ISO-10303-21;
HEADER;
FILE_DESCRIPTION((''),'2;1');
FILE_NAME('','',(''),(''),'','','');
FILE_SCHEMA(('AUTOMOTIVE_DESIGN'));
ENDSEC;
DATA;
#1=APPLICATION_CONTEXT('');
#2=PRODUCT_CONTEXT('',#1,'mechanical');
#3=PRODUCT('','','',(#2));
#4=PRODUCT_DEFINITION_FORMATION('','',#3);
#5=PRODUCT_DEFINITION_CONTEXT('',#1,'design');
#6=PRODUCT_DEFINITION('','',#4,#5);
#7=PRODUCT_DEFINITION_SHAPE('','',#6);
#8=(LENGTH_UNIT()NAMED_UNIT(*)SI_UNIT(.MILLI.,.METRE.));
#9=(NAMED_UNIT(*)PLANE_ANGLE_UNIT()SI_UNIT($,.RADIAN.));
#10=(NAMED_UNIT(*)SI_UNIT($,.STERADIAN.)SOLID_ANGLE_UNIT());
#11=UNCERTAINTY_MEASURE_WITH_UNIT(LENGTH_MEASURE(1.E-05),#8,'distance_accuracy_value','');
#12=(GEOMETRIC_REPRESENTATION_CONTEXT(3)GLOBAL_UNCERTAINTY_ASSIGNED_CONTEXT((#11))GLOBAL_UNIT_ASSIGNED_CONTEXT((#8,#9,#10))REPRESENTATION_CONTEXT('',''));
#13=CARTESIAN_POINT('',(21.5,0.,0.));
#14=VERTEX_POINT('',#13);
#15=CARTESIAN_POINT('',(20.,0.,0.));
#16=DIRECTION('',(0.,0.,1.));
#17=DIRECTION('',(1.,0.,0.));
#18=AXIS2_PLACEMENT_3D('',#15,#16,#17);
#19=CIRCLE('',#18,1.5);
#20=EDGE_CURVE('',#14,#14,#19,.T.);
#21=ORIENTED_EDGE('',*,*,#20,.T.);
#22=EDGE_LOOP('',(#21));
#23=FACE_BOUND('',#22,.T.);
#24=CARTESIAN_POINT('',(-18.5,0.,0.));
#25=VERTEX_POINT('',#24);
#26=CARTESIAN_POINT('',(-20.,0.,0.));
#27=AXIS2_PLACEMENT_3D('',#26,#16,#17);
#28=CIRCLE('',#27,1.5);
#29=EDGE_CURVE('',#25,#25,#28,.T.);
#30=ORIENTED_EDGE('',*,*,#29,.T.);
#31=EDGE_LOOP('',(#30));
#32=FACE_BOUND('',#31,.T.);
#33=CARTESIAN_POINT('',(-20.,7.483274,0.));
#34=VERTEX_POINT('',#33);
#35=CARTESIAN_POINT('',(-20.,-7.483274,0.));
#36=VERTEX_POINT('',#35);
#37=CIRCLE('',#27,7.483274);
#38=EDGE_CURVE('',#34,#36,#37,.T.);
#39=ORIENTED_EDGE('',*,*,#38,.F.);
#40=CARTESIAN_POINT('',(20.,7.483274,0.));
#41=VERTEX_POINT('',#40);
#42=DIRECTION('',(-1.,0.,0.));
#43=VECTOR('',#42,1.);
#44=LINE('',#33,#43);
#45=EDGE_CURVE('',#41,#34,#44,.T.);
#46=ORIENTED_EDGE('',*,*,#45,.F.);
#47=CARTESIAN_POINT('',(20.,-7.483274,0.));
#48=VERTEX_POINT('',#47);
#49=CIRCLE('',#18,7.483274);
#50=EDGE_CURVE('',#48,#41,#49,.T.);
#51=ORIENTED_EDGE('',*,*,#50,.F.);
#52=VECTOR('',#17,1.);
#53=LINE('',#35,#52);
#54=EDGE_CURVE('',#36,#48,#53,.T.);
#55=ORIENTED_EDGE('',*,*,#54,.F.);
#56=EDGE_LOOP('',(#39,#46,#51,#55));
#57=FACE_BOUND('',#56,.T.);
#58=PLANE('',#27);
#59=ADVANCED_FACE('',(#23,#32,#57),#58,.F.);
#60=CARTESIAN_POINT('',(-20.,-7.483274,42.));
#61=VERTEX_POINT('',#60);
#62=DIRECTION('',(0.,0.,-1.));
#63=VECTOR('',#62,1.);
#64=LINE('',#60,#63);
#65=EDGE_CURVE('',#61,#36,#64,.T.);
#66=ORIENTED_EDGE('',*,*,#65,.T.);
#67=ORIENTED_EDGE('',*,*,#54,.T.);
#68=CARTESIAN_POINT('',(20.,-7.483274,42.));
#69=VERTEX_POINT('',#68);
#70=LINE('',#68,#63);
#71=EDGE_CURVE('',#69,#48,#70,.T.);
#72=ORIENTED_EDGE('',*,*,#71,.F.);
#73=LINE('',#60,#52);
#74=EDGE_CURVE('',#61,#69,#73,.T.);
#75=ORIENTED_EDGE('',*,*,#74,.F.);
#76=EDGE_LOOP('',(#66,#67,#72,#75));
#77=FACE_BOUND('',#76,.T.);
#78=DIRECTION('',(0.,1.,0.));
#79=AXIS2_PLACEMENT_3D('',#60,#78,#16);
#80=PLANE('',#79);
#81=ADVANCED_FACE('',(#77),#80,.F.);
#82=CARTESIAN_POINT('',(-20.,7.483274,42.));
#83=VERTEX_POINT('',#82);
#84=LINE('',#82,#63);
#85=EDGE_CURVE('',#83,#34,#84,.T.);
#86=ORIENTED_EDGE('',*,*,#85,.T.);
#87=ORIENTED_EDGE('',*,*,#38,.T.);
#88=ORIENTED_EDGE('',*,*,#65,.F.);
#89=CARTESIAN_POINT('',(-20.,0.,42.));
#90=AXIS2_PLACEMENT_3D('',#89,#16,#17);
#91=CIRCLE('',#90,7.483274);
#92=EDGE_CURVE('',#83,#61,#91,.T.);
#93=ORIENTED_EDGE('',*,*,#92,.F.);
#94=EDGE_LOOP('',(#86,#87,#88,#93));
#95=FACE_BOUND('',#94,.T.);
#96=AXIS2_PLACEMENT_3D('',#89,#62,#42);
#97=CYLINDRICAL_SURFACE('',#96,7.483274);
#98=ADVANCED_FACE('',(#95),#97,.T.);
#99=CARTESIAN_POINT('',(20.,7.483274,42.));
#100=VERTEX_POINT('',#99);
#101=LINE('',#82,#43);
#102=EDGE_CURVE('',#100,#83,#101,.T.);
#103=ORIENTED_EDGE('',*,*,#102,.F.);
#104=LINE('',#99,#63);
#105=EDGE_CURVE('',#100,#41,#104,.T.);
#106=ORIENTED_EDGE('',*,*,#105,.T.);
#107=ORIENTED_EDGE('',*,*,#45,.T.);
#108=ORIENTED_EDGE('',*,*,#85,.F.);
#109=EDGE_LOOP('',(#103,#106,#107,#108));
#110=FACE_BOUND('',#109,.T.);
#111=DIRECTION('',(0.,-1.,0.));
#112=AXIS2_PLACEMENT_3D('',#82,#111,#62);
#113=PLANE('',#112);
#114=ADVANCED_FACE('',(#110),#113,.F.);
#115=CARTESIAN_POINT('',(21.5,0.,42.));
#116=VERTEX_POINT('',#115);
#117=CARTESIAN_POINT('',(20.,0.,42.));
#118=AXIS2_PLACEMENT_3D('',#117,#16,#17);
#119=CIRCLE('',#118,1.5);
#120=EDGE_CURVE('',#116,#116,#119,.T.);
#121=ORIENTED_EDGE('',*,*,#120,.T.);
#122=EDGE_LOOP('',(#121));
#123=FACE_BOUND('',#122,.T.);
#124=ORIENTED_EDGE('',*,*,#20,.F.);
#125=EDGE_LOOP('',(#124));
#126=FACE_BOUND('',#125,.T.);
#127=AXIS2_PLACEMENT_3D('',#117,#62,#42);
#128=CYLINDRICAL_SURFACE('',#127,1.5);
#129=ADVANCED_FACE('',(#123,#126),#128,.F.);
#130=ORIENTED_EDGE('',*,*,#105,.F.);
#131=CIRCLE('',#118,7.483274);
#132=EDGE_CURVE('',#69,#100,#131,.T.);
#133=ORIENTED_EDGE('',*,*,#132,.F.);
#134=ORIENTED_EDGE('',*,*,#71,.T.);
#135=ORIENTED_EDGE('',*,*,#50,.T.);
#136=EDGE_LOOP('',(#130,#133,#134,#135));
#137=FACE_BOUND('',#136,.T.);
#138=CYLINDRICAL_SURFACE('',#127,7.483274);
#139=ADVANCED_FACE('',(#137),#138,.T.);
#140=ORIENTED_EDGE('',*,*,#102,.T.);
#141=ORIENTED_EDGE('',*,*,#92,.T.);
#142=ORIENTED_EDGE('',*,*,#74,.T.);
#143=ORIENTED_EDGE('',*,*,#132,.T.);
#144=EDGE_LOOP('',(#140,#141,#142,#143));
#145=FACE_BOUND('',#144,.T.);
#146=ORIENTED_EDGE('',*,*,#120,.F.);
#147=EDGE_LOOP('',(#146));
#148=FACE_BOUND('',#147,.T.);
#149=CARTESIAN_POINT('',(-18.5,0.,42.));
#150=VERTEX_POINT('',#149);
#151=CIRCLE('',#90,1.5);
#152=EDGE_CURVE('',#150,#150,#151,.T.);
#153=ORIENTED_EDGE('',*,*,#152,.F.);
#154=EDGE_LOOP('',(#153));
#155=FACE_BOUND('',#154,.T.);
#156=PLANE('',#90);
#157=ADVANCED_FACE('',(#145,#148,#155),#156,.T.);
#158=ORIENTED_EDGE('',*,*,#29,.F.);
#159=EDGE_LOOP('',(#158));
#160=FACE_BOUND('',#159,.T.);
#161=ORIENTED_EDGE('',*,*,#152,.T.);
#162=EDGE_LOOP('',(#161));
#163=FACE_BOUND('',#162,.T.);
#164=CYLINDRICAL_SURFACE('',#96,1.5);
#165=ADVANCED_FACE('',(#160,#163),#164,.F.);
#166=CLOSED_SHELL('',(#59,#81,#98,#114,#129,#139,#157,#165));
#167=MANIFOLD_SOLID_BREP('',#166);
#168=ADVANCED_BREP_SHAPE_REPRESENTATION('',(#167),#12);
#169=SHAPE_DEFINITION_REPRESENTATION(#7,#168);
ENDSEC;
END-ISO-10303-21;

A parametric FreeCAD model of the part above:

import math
import FreeCAD as App
import Part
import Sketcher
from FreeCAD import Vector

doc = App.newDocument("Part")
body = doc.addObject("PartDesign::Body", "Body")

# Sketch on XY plane
sketch1 = doc.addObject("Sketcher::SketchObject", "Sketch")
body.addObject(sketch1)
sketch1.AttachmentSupport = (doc.XY_Plane, [""])
sketch1.MapMode = "FlatFace"
sketch1.addGeometry([
    Part.LineSegment(Vector(20, 7.483274, 0), Vector(-20, 7.483274, 0)),  # 0
    Part.ArcOfCircle(Part.Circle(Vector(-20, 0, 0), Vector(0, 0, 1), 7.483274), math.radians(90), math.radians(270)),  # 1
    Part.LineSegment(Vector(-20, -7.483274, 0), Vector(20, -7.483274, 0)),  # 2
    Part.ArcOfCircle(Part.Circle(Vector(20, 0, 0), Vector(0, 0, 1), 7.483274), math.radians(-90), math.radians(90)),  # 3
    Part.Circle(Vector(20, 0, 0), Vector(0, 0, 1), 1.5),  # 4
    Part.Circle(Vector(-20, 0, 0), Vector(0, 0, 1), 1.5),  # 5
], False)
sketch1.addConstraint([
    Sketcher.Constraint("Tangent", 0, 2, 1, 1),
    Sketcher.Constraint("Tangent", 1, 2, 2, 1),
    Sketcher.Constraint("Tangent", 2, 2, 3, 1),
    Sketcher.Constraint("Tangent", 3, 2, 0, 1),
    Sketcher.Constraint("Horizontal", 0),
    Sketcher.Constraint("Horizontal", 2),
    Sketcher.Constraint("Coincident", 4, 3, 3, 3),
    Sketcher.Constraint("Coincident", 5, 3, 1, 3),
    Sketcher.Constraint("Equal", 4, 5),
    Sketcher.Constraint("Symmetric", 1, 3, 3, 3, -1, 1),
    Sketcher.Constraint("Diameter", 4, 3.0),
    Sketcher.Constraint("DistanceX", 0, 2, 0, 1, 40.0),
    Sketcher.Constraint("Radius", 1, 7.483274),
])
pad1 = doc.addObject("PartDesign::Pad", "Pad")
body.addObject(pad1)
pad1.Profile = sketch1
pad1.Length = 42

doc.recompute()
